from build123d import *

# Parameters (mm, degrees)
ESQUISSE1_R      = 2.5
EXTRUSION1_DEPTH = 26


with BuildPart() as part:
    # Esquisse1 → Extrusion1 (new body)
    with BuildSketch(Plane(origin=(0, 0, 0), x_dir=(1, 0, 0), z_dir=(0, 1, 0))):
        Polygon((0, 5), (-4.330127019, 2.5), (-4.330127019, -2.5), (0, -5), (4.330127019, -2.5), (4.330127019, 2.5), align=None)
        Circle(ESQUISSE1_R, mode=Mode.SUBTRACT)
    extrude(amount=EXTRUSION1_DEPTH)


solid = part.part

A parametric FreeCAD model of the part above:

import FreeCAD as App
import Part
import Sketcher
from FreeCAD import Vector
Q = App.Units.Quantity


def add_polygon(sketch, points):
    """Adds a closed chain of lines whose ends are joined by coincident constraints."""
    first, n = sketch.GeometryCount, len(points)
    for a, b in zip(points, points[1:] + points[:1]):
        sketch.addGeometry(Part.LineSegment(App.Vector(*a, 0), App.Vector(*b, 0)), False)
    for i in range(n):
        sketch.addConstraint(Sketcher.Constraint("Coincident", first + i, 2, first + (i + 1) % n, 1))

doc = App.newDocument("Part")
body = doc.addObject("PartDesign::Body", "Body")

# Sketch on XZ plane
sketch1 = body.newObject("Sketcher::SketchObject", "Sketch")
sketch1.AttachmentSupport = (doc.getObject("XZ_Plane"), [""])
sketch1.MapMode = "FlatFace"
add_polygon(sketch1, [(0, -5), (-4.3, -2.5), (-4.3, 2.5), (0, 5), (4.3, 2.5), (4.3, -2.5)])  # lines 0-5
sketch1.addGeometry(Part.Circle(Vector(0, 0, 0), Vector(0, 0, 1), 2.5), False)  # 6
sketch1.addConstraint([
    Sketcher.Constraint("Vertical", 1),
    Sketcher.Constraint("Vertical", 4),
    Sketcher.Constraint("Coincident", 6, 3, -1, 1),
    Sketcher.Constraint("Symmetric", 0, 2, 3, 2, -1, 1),
    Sketcher.Constraint("Symmetric", 2, 2, 5, 2, -1, 1),
    Sketcher.Constraint("PointOnObject", 2, 2, -2),
    Sketcher.Constraint("Parallel", 2, 5),
    Sketcher.Constraint("Horizontal", 1, 2, 3, 2),
    Sketcher.Constraint("Diameter", 6, Q("5 mm")),
    Sketcher.Constraint("DistanceY", 1, 1, 1, 2, Q("5 mm")),
    Sketcher.Constraint("Angle", 0, Q("150 deg")),
    Sketcher.Constraint("Distance", 0, Q("5 mm")),
])
pad1 = body.newObject("PartDesign::Pad", "Pad")
pad1.Profile = sketch1
pad1.Length = 26
pad1.Reversed = True

doc.recompute()
